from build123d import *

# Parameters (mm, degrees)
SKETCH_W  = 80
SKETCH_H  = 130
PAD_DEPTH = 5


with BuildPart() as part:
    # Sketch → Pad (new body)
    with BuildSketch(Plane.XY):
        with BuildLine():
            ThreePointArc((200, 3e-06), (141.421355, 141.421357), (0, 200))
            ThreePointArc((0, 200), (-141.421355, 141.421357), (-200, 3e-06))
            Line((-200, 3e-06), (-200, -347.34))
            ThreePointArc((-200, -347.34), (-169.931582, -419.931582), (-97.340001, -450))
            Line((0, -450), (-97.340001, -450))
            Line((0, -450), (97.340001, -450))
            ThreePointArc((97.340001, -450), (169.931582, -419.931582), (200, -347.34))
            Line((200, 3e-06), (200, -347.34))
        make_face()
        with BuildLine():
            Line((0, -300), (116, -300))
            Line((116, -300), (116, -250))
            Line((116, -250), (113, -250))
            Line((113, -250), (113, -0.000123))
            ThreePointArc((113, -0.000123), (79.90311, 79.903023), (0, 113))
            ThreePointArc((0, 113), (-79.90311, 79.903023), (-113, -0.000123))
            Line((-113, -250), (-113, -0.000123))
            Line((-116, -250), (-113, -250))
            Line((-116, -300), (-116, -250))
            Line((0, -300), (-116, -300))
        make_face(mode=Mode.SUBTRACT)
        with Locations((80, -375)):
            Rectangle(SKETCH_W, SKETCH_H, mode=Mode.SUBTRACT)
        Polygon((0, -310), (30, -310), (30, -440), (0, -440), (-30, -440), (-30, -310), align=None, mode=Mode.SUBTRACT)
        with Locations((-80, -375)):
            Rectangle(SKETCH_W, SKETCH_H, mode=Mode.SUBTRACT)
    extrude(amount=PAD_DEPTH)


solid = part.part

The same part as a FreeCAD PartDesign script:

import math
import FreeCAD as App
import Part
import Sketcher
from FreeCAD import Vector


def add_polygon(sketch, points):
    """Adds a closed chain of lines whose ends are joined by coincident constraints."""
    first, n = sketch.GeometryCount, len(points)
    for a, b in zip(points, points[1:] + points[:1]):
        sketch.addGeometry(Part.LineSegment(App.Vector(*a, 0), App.Vector(*b, 0)), False)
    for i in range(n):
        sketch.addConstraint(Sketcher.Constraint("Coincident", first + i, 2, first + (i + 1) % n, 1))

doc = App.newDocument("Part")
params = doc.addObject("Spreadsheet::Sheet", "Params")
for row, (alias, value) in enumerate([
    ("sketch1_radius", "200.000001 mm"),
    ("sketch1_radius2", "112.999999 mm"),
    ("sketch1_width", "80 mm"),
    ("sketch1_width2", "60 mm"),
    ("sketch1_width3", "80 mm"),
    ("pad1_length", "5 mm"),
], start=1):
    params.set(f"A{row}", alias)
    params.set(f"B{row}", "=" + value)
    params.setAlias(f"B{row}", alias)

body = doc.addObject("PartDesign::Body", "Body")

sketch1 = body.newObject("Sketcher::SketchObject", "Sketch")
sketch1.AttachmentSupport = (doc.getObject("XY_Plane"), [""])
sketch1.MapMode = "FlatFace"
sketch1.addGeometry(Part.ArcOfCircle(Part.Circle(Vector(-0.000001, -0.000001, 0), Vector(0, 0, 1), 200.000001), math.radians(0.000001), math.radians(90)), False)
sketch1.addGeometry(Part.ArcOfCircle(Part.Circle(Vector(0.000001, -0.000001, 0), Vector(0, 0, 1), 200.000001), math.radians(90), math.radians(179.999999)), False)
sketch1.addGeometry(Part.LineSegment(Vector(-200, 0.000003, 0), Vector(-200, -347.34, 0)), False)
sketch1.addGeometry(Part.ArcOfCircle(Part.Circle(Vector(-97.339999, -347.339999, 0), Vector(0, 0, 1), 102.660001), math.radians(-180), math.radians(-90.000001)), False)
sketch1.addGeometry(Part.LineSegment(Vector(-97.340001, -450, 0), Vector(97.340001, -450, 0)), False)
sketch1.addGeometry(Part.ArcOfCircle(Part.Circle(Vector(97.339999, -347.339999, 0), Vector(0, 0, 1), 102.660001), math.radians(-89.999999), math.radians(0)), False)
sketch1.addGeometry(Part.LineSegment(Vector(200, -347.34, 0), Vector(200, 0.000003, 0)), False)
add_polygon(sketch1, [(-40, -440), (-120, -440), (-120, -310), (-40, -310)])
add_polygon(sketch1, [(-30, -310), (30, -310), (30, -440), (-30, -440)])
add_polygon(sketch1, [(120, -440), (40, -440), (40, -310), (120, -310)])
sketch1.addGeometry(Part.LineSegment(Vector(116, -300, 0), Vector(-116, -300, 0)), False)
sketch1.addGeometry(Part.LineSegment(Vector(-116, -300, 0), Vector(-116, -250, 0)), False)
sketch1.addGeometry(Part.LineSegment(Vector(-116, -250, 0), Vector(-113, -250, 0)), False)
sketch1.addGeometry(Part.LineSegment(Vector(-113, -250, 0), Vector(-113, -0.000123, 0)), False)
sketch1.addGeometry(Part.ArcOfCircle(Part.Circle(Vector(-0.000001, 0.000001, 0), Vector(0, 0, 1), 112.999999), math.radians(90), math.radians(180.000063)), False)
sketch1.addGeometry(Part.ArcOfCircle(Part.Circle(Vector(0.000001, 0.000001, 0), Vector(0, 0, 1), 112.999999), math.radians(-0.000063), math.radians(90)), False)
sketch1.addGeometry(Part.LineSegment(Vector(113, -0.000123, 0), Vector(113, -250, 0)), False)
sketch1.addGeometry(Part.LineSegment(Vector(113, -250, 0), Vector(116, -250, 0)), False)
sketch1.addGeometry(Part.LineSegment(Vector(116, -250, 0), Vector(116, -300, 0)), False)
sketch1.addConstraint([
    Sketcher.Constraint("Coincident", 0, 2, 1, 1),
    Sketcher.Constraint("Coincident", 1, 2, 2, 1),
    Sketcher.Constraint("Coincident", 2, 2, 3, 1),
    Sketcher.Constraint("Coincident", 3, 2, 4, 1),
    Sketcher.Constraint("Coincident", 4, 2, 5, 1),
    Sketcher.Constraint("Coincident", 5, 2, 6, 1),
    Sketcher.Constraint("Coincident", 6, 2, 0, 1),
    Sketcher.Constraint("Coincident", 19, 2, 20, 1),
    Sketcher.Constraint("Coincident", 20, 2, 21, 1),
    Sketcher.Constraint("Coincident", 21, 2, 22, 1),
    Sketcher.Constraint("Coincident", 22, 2, 23, 2),
    Sketcher.Constraint("Coincident", 23, 1, 24, 2),
    Sketcher.Constraint("Coincident", 24, 1, 25, 1),
    Sketcher.Constraint("Coincident", 25, 2, 26, 1),
    Sketcher.Constraint("Coincident", 26, 2, 27, 1),
    Sketcher.Constraint("Coincident", 27, 2, 19, 1),
    Sketcher.Constraint("Vertical", 2),
    Sketcher.Constraint("Horizontal", 4),
    Sketcher.Constraint("Vertical", 6),
    Sketcher.Constraint("Horizontal", 7),
    Sketcher.Constraint("Vertical", 8),
    Sketcher.Constraint("Horizontal", 9),
    Sketcher.Constraint("Vertical", 10),
    Sketcher.Constraint("Horizontal", 11),
    Sketcher.Constraint("Vertical", 12),
    Sketcher.Constraint("Horizontal", 13),
    Sketcher.Constraint("Vertical", 14),
    Sketcher.Constraint("Horizontal", 15),
    Sketcher.Constraint("Vertical", 16),
    Sketcher.Constraint("Horizontal", 17),
    Sketcher.Constraint("Vertical", 18),
    Sketcher.Constraint("Horizontal", 19),
    Sketcher.Constraint("Vertical", 20),
    Sketcher.Constraint("Horizontal", 21),
    Sketcher.Constraint("Vertical", 22),
    Sketcher.Constraint("Vertical", 25),
    Sketcher.Constraint("Horizontal", 26),
    Sketcher.Constraint("Vertical", 27),
    Sketcher.Constraint("Coincident", 0, 3, -1, 1),
    Sketcher.Constraint("Coincident", 1, 3, -1, 1),
    Sketcher.Constraint("Coincident", 23, 3, -1, 1),
    Sketcher.Constraint("Coincident", 24, 3, -1, 1),
    Sketcher.Constraint("PointOnObject", 0, 2, -2),
    Sketcher.Constraint("PointOnObject", 23, 1, -2),
    Sketcher.Constraint("Radius", 0, 200.000001),
    Sketcher.Constraint("Radius", 23, 112.999999),
    Sketcher.Constraint("DistanceX", 7, 2, 7, 1, 80.0),
    Sketcher.Constraint("DistanceX", 11, 1, 11, 2, 60.0),
    Sketcher.Constraint("DistanceX", 15, 2, 15, 1, 80.0),
    Sketcher.Constraint("DistanceX", 19, 2, 19, 1, 232.0),
    Sketcher.Constraint("DistanceX", 21, 1, 21, 2, 3.0),
    Sketcher.Constraint("DistanceY", 8, 1, 8, 2, 130.0),
    Sketcher.Constraint("DistanceY", 12, 2, 12, 1, 130.0),
    Sketcher.Constraint("DistanceY", 16, 1, 16, 2, 130.0),
    Sketcher.Constraint("DistanceY", 20, 1, 20, 2, 50.0),
    Sketcher.Constraint("DistanceY", 27, 2, 27, 1, 50.0),
    Sketcher.Constraint("Radius", 3, 102.660001),
    Sketcher.Constraint("Radius", 5, 102.660001),
    Sketcher.Constraint("DistanceY", 3, 2, -1, 1, 450.0),
    Sketcher.Constraint("DistanceX", 7, 2, -1, 1, 120.0),
    Sketcher.Constraint("DistanceY", 7, 2, -1, 1, 440.0),
    Sketcher.Constraint("DistanceX", -1, 1, 11, 2, 30.0),
    Sketcher.Constraint("DistanceY", 11, 2, -1, 1, 310.0),
    Sketcher.Constraint("DistanceX", -1, 1, 15, 2, 40.0),
    Sketcher.Constraint("DistanceY", 15, 2, -1, 1, 440.0),
    Sketcher.Constraint("DistanceY", 19, 2, -1, 1, 300.0),
    Sketcher.Constraint("DistanceX", 4, 1, 4, 2, 194.680002),
    Sketcher.Constraint("DistanceY", 2, 2, -1, 1, 347.34),
    Sketcher.Constraint("DistanceX", 3, 2, -1, 1, 97.340001),
    Sketcher.Constraint("DistanceY", 5, 2, -1, 1, 347.34),
    Sketcher.Constraint("DistanceY", 2, 2, 2, 1, 347.340003),
    Sketcher.Constraint("DistanceY", 6, 1, 6, 2, 347.340003),
    Sketcher.Constraint("DistanceY", 22, 1, 22, 2, 249.999877),
    Sketcher.Constraint("DistanceY", 25, 2, 25, 1, 249.999877),
])
sketch1.setExpression("Constraints[56]", "Params.sketch1_radius")
sketch1.setExpression("Constraints[57]", "Params.sketch1_radius2")
sketch1.setExpression("Constraints[58]", "Params.sketch1_width")
sketch1.setExpression("Constraints[59]", "Params.sketch1_width2")
sketch1.setExpression("Constraints[60]", "Params.sketch1_width3")
pad1 = body.newObject("PartDesign::Pad", "Pad")
pad1.Profile = sketch1
pad1.setExpression("Length", "Params.pad1_length")

doc.recompute()
